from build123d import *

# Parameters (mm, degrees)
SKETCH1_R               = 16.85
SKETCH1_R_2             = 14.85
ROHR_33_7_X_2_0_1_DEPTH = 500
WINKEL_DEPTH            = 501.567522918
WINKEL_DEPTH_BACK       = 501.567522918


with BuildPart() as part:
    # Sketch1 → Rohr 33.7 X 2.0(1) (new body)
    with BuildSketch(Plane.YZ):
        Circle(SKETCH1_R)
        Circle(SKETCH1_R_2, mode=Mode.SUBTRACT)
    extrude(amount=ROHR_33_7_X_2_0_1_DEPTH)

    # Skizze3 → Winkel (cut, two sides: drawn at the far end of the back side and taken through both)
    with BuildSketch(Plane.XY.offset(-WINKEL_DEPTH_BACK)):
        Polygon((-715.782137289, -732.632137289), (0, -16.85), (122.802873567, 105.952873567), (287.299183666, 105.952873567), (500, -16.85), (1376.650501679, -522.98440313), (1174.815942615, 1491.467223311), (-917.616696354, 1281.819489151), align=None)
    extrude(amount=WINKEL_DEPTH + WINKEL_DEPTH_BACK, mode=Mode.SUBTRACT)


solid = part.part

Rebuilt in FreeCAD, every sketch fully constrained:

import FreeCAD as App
import Part
import Sketcher
Q = App.Units.Quantity


def add_polygon(sketch, points):
    """Adds a closed chain of lines whose ends are joined by coincident constraints."""
    first, n = sketch.GeometryCount, len(points)
    for a, b in zip(points, points[1:] + points[:1]):
        sketch.addGeometry(Part.LineSegment(App.Vector(*a, 0), App.Vector(*b, 0)), False)
    for i in range(n):
        sketch.addConstraint(Sketcher.Constraint("Coincident", first + i, 2, first + (i + 1) % n, 1))

doc = App.newDocument("Part")
body = doc.addObject("PartDesign::Body", "Body")

# Sketch on YZ plane
sketch1 = doc.addObject("Sketcher::SketchObject", "Sketch")
body.addObject(sketch1)
sketch1.AttachmentSupport = (doc.YZ_Plane, [""])
sketch1.MapMode = "FlatFace"
sketch1.addGeometry([
    Part.Circle(App.Vector(0, 0, 0), App.Vector(0, 0, 1), 17),
    Part.Circle(App.Vector(0, 0, 0), App.Vector(0, 0, 1), 15),
], False)
sketch1.addConstraint([
    Sketcher.Constraint("Coincident", 0, 3, -1, 1),
    Sketcher.Constraint("Coincident", 1, 3, -1, 1),
    Sketcher.Constraint("Diameter", 0, Q("33.7 mm")),
    Sketcher.Constraint("Diameter", 1, Q("29.7 mm")),
])
pad1 = doc.addObject("PartDesign::Pad", "Pad")
body.addObject(pad1)
pad1.Profile = sketch1
pad1.Length = 500

# Sketch on XY plane
sketch2 = doc.addObject("Sketcher::SketchObject", "Sketch001")
body.addObject(sketch2)
sketch2.AttachmentSupport = (doc.XY_Plane, [""])
sketch2.MapMode = "FlatFace"
add_polygon(sketch2, [(-716, -733), (123, 106), (287, 106), (500, -17), (1377, -523), (1175, 1491), (-918, 1282)])  # lines 0-6
sketch2.addConstraint([
    Sketcher.Constraint("Horizontal", 1),
    Sketcher.Constraint("Parallel", 2, 3),
    Sketcher.Constraint("Perpendicular", 4, 5),
    Sketcher.Constraint("Perpendicular", 5, 6),
    Sketcher.Constraint("Equal", 4, 6),
    Sketcher.Constraint("Angle", 0, Q("45 deg")),
    Sketcher.Constraint("Angle", 2, Q("-30 deg")),
    Sketcher.Constraint("DistanceX", -1, 1, 2, 2, Q("500 mm")),
    Sketcher.Constraint("DistanceY", 2, 2, -1, 1, Q("16.85 mm")),
    Sketcher.Constraint("DistanceX", 1, 1, 1, 2, Q("164.49631 mm")),
    Sketcher.Constraint("DistanceX", -1, 1, 3, 2, Q("1376.650502 mm")),
    Sketcher.Constraint("DistanceX", 5, 2, 3, 2, Q("2294.267198 mm")),
    Sketcher.Constraint("Distance", 5, Q("2102.909062 mm")),
    Sketcher.Constraint("DistanceY", -1, 1, 5, 2, Q("1281.819489 mm")),
])
pocket1 = doc.addObject("PartDesign::Pocket", "Pocket")
body.addObject(pocket1)
pocket1.Profile = sketch2
pocket1.Type = "ThroughAll"
pocket1.Midplane = True

doc.recompute()
